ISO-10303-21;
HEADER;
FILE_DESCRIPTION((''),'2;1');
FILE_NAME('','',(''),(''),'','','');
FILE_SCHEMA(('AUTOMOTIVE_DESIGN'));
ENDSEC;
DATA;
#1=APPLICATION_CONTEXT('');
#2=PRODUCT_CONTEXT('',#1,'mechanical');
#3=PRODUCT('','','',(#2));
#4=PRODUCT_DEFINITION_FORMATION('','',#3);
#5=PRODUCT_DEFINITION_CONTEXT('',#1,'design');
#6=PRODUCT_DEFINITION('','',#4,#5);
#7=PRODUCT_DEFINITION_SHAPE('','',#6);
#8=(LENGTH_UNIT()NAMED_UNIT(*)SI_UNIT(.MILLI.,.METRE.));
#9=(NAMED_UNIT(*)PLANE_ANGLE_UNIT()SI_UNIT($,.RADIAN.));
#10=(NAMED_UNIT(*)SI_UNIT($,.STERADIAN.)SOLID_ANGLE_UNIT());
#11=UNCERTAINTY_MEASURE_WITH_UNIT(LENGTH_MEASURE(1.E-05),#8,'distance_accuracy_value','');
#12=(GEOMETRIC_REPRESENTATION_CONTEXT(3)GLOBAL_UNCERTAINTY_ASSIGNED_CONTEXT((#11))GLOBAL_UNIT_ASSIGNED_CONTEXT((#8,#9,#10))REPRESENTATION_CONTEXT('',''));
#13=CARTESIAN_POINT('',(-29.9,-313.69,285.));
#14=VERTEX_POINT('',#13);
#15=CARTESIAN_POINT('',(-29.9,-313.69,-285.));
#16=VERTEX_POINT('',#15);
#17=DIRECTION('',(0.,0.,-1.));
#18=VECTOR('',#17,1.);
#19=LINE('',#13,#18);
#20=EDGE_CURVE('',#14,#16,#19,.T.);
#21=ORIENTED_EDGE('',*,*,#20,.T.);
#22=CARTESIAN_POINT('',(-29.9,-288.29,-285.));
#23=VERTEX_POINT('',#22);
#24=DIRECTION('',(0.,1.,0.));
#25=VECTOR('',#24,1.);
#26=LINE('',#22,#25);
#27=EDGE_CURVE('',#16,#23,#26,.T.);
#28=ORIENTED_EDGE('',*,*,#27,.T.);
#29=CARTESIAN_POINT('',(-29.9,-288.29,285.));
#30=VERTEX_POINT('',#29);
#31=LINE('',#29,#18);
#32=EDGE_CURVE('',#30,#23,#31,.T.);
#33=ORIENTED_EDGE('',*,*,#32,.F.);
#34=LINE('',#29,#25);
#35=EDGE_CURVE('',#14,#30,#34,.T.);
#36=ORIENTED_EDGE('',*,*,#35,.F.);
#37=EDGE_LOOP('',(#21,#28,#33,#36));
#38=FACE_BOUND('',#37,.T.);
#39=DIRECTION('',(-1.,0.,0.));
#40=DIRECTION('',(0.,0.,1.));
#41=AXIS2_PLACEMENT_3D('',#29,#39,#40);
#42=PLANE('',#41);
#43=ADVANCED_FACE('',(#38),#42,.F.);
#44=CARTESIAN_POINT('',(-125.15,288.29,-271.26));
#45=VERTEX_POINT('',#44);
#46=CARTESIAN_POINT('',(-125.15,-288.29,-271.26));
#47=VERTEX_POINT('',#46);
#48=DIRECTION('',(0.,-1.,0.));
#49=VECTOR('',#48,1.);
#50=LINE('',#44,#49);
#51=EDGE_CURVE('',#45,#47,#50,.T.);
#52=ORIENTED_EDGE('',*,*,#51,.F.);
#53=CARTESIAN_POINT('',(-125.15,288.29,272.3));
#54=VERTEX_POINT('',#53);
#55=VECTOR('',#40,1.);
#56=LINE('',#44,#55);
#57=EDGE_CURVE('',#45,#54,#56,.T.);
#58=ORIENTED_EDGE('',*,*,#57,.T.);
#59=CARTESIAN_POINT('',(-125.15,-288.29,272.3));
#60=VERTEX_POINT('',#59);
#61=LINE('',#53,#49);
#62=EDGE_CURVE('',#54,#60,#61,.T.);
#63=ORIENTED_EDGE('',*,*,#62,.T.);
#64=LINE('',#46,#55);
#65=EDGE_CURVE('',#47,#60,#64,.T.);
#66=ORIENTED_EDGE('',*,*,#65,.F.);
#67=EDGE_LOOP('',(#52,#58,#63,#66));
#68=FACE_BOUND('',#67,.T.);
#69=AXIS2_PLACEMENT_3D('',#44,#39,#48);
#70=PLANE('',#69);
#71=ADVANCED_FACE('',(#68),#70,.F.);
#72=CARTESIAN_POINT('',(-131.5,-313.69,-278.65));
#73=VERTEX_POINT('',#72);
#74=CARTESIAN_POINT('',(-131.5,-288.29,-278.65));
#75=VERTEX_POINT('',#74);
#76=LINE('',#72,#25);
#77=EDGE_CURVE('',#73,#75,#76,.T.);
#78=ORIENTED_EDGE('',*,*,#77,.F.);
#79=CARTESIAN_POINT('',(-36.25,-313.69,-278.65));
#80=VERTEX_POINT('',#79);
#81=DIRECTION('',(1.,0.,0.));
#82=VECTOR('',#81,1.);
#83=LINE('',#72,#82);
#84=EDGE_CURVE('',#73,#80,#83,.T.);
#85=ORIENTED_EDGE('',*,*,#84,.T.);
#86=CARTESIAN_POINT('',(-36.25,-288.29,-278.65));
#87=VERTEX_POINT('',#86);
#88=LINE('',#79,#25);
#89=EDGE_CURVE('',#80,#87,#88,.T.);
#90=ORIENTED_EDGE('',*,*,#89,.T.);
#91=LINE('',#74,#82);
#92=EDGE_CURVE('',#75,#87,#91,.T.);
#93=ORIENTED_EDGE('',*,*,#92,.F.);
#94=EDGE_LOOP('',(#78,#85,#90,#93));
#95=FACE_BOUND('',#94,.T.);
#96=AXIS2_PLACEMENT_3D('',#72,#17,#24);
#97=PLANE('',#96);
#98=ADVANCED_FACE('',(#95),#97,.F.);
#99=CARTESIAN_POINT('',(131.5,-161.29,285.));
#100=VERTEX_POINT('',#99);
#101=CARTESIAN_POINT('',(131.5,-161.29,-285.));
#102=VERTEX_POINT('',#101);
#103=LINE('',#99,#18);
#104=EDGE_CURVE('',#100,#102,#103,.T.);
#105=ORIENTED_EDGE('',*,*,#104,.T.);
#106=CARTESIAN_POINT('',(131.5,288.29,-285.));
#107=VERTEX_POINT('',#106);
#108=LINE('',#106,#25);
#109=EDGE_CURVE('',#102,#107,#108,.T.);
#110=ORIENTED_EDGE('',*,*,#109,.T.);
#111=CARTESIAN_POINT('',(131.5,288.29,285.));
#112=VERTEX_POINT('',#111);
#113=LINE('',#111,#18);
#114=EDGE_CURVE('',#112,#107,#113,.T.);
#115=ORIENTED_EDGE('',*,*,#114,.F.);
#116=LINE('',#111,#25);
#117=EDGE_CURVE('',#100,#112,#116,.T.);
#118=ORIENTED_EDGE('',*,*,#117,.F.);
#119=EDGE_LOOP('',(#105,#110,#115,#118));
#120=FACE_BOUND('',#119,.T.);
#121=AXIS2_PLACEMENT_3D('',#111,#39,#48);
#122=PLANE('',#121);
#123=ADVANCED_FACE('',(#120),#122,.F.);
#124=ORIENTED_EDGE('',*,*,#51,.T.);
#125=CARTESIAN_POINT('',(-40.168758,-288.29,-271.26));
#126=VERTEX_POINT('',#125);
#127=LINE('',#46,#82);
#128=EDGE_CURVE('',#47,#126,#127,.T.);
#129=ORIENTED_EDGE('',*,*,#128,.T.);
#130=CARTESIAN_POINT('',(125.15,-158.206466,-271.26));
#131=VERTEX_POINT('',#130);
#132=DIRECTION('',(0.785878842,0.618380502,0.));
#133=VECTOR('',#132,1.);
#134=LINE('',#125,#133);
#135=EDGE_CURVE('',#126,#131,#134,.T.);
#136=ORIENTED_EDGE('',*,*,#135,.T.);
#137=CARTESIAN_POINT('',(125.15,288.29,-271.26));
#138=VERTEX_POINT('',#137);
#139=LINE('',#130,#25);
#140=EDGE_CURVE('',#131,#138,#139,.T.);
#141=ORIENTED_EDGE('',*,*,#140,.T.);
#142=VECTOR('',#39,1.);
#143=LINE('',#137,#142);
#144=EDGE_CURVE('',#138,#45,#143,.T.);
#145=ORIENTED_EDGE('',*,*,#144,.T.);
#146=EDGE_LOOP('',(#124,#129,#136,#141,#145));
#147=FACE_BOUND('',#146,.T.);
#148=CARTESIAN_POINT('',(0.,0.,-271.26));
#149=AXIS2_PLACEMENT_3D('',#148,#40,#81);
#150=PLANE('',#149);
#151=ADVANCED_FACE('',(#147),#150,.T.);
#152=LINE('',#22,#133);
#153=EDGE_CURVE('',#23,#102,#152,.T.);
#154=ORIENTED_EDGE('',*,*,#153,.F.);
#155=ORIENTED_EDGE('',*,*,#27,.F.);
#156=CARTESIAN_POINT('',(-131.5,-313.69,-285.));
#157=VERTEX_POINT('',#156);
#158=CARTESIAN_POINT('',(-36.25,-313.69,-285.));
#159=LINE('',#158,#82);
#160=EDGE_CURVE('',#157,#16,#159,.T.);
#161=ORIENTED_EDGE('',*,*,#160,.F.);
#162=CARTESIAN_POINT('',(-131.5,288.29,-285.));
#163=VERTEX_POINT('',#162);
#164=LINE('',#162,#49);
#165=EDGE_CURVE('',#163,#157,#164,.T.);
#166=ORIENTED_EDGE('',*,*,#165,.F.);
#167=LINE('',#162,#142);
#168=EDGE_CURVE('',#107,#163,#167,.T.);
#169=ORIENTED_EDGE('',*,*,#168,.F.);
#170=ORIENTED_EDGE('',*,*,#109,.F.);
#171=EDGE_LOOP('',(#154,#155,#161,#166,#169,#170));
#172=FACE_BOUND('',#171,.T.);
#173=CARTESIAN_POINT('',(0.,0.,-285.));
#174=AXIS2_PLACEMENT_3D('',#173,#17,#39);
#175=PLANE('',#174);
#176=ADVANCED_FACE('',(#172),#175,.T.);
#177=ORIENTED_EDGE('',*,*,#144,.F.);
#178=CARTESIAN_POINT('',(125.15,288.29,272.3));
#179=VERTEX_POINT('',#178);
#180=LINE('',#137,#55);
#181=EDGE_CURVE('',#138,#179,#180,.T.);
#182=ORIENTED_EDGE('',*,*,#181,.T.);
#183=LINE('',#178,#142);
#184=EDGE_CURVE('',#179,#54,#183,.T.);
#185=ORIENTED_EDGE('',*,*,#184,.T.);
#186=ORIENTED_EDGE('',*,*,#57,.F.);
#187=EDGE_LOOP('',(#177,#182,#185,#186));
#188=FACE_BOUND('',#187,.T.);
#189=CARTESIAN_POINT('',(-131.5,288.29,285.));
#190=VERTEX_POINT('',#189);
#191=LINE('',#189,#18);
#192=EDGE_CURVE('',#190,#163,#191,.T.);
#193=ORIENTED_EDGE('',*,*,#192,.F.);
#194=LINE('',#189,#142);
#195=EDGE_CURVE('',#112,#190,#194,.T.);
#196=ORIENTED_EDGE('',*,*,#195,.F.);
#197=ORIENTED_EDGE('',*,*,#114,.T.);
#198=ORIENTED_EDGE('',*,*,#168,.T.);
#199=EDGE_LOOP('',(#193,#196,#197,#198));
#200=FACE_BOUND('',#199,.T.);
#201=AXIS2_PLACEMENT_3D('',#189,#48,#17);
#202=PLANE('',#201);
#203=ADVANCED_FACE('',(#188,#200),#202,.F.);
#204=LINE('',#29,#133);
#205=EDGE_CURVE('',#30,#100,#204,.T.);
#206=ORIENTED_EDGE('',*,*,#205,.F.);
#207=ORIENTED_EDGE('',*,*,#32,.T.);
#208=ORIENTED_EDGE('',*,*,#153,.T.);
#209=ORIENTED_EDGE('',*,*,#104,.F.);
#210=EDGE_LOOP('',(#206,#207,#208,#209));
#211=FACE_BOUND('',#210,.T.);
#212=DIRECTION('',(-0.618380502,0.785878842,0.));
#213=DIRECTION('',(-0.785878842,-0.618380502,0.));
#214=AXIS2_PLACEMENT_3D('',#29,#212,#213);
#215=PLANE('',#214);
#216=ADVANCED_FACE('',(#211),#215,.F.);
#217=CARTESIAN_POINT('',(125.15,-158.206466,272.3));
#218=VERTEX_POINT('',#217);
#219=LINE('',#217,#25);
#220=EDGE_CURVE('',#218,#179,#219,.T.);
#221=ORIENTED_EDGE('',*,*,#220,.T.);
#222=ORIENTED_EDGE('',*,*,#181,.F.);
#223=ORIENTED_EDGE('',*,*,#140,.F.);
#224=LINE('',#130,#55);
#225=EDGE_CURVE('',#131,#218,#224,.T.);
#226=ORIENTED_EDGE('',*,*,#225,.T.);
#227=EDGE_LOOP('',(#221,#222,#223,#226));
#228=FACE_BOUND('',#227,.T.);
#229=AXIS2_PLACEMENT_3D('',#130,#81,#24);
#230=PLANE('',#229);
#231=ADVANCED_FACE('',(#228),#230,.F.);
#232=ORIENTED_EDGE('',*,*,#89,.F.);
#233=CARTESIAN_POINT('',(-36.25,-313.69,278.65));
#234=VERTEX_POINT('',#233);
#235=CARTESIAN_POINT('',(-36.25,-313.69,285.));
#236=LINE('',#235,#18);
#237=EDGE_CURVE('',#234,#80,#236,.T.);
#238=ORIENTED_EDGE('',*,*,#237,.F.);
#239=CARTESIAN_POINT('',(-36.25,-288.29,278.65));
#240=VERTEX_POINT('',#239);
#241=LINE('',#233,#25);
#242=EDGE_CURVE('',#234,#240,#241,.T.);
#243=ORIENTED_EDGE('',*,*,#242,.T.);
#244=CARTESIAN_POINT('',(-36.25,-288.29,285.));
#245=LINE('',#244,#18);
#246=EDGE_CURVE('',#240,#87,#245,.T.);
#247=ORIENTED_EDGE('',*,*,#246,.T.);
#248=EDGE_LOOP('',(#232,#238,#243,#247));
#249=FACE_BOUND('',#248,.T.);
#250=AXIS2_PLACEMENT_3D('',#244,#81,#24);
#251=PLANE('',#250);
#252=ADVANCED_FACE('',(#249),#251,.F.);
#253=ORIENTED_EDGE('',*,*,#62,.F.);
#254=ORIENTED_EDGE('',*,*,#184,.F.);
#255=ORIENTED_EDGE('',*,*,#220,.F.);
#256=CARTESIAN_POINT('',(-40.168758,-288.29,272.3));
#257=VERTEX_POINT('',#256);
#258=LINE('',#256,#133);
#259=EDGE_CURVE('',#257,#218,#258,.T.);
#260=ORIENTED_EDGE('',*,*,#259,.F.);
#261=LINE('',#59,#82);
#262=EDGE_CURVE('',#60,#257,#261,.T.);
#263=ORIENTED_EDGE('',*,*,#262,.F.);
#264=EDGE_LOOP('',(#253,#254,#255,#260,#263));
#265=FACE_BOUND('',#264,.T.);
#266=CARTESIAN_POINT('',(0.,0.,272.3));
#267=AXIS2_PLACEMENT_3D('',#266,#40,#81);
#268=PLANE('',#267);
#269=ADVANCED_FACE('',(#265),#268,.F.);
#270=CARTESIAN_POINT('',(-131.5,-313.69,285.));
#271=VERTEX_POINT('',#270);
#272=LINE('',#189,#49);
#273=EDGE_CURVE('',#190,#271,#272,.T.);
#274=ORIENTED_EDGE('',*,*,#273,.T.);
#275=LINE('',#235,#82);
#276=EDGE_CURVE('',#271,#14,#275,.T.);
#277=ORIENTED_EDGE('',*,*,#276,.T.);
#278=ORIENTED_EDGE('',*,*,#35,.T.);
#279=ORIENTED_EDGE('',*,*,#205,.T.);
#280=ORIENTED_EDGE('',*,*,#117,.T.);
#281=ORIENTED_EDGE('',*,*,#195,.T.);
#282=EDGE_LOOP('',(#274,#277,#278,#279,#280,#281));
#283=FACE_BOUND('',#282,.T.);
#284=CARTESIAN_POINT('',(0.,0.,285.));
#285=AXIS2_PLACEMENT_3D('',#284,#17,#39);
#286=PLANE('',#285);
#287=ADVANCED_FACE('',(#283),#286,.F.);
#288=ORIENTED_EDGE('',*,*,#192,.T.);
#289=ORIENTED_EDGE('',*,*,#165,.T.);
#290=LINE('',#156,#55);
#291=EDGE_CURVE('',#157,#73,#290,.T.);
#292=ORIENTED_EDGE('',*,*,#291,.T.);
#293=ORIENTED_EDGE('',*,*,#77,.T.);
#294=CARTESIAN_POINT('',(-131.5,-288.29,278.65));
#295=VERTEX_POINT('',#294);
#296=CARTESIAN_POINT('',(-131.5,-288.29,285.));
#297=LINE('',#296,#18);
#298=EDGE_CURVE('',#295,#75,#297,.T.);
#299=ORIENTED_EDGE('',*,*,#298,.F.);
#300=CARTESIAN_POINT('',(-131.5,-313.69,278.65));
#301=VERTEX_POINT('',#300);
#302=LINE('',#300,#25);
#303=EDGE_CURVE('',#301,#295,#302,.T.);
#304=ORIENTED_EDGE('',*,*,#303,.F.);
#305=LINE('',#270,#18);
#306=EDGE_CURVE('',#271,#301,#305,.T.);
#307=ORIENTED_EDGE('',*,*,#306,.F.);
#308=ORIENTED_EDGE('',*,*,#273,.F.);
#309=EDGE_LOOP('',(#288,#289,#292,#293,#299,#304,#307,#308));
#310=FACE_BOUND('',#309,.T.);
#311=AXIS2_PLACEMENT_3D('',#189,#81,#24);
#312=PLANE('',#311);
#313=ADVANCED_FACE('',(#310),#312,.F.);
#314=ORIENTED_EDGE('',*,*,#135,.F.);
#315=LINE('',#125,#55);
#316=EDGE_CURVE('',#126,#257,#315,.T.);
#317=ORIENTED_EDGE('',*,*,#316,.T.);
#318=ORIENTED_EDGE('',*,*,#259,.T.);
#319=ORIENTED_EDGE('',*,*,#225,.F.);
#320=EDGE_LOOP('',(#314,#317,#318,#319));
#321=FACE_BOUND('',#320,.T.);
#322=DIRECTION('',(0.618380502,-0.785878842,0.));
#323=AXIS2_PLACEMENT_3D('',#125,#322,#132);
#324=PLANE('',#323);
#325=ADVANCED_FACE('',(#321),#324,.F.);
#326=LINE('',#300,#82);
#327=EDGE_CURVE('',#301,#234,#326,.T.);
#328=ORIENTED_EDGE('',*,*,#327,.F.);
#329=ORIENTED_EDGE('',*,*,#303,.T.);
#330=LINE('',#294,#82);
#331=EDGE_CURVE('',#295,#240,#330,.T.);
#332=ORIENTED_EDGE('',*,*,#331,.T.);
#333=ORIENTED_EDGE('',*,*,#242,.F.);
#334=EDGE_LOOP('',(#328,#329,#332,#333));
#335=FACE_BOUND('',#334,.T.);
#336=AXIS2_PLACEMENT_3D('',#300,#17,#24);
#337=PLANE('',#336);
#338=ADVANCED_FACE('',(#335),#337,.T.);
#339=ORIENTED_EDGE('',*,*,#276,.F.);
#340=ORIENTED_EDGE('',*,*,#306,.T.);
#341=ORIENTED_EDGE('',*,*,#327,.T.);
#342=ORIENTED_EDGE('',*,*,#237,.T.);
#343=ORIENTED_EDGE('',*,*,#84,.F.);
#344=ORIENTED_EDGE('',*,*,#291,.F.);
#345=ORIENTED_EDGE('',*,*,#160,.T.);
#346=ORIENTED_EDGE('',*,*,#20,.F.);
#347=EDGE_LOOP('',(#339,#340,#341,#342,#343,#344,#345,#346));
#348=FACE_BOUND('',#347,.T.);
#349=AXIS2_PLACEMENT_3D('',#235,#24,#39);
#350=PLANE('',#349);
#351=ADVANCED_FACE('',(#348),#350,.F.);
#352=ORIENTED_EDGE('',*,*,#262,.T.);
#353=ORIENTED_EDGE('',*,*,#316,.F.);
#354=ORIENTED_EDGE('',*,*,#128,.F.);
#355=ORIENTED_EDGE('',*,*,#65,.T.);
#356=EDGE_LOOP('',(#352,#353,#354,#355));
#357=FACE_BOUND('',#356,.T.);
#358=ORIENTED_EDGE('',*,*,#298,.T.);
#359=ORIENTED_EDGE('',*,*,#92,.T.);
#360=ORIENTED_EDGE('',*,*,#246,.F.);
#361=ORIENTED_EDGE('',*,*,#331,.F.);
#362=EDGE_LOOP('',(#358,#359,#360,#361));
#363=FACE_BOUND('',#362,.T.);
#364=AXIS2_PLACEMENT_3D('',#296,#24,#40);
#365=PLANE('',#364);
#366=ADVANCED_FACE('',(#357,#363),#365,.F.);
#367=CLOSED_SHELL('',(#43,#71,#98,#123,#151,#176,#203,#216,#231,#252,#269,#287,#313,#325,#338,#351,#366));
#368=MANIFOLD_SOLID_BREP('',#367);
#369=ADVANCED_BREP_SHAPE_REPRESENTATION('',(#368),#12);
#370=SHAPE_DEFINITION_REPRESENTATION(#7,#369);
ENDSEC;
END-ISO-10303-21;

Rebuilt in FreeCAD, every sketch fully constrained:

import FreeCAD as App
import Part
import Sketcher
from FreeCAD import Vector
Q = App.Units.Quantity

doc = App.newDocument("Part")
body = doc.addObject("PartDesign::Body", "Body")

# Sketch on XY plane
sketch1 = doc.addObject("Sketcher::SketchObject", "Sketch")
body.addObject(sketch1)
sketch1.AttachmentSupport = (doc.XY_Plane, [""])
sketch1.MapMode = "FlatFace"
sketch1.addGeometry([
    Part.LineSegment(Vector(-30, -288, 0), Vector(132, -161, 0)),  # 0
    Part.LineSegment(Vector(132, -161, 0), Vector(132, 288, 0)),  # 1
    Part.LineSegment(Vector(132, 288, 0), Vector(-132, 288, 0)),  # 2
    Part.LineSegment(Vector(-132, 288, 0), Vector(-132, -288, 0)),  # 3
    Part.LineSegment(Vector(-132, -288, 0), Vector(-36, -288, 0)),  # 4
    Part.LineSegment(Vector(-36, -288, 0), Vector(-36, -314, 0)),  # 5
    Part.LineSegment(Vector(-36, -314, 0), Vector(-30, -314, 0)),  # 6
    Part.LineSegment(Vector(-30, -314, 0), Vector(-30, -288, 0)),  # 7
], False)
sketch1.addConstraint([
    Sketcher.Constraint("Coincident", 0, 2, 1, 1),
    Sketcher.Constraint("Coincident", 1, 2, 2, 1),
    Sketcher.Constraint("Coincident", 2, 2, 3, 1),
    Sketcher.Constraint("Coincident", 3, 2, 4, 1),
    Sketcher.Constraint("Coincident", 4, 2, 5, 1),
    Sketcher.Constraint("Coincident", 5, 2, 6, 1),
    Sketcher.Constraint("Coincident", 6, 2, 7, 1),
    Sketcher.Constraint("Coincident", 7, 2, 0, 1),
    Sketcher.Constraint("Vertical", 1),
    Sketcher.Constraint("Horizontal", 2),
    Sketcher.Constraint("Vertical", 3),
    Sketcher.Constraint("Horizontal", 4),
    Sketcher.Constraint("Vertical", 5),
    Sketcher.Constraint("Horizontal", 6),
    Sketcher.Constraint("Vertical", 7),
    Sketcher.Constraint("Symmetric", 1, 2, 3, 2, -1, 1),
    Sketcher.Constraint("Horizontal", 4, 2, 7, 2),
    Sketcher.Constraint("DistanceY", 5, 2, 5, 1, Q("1 in")),
    Sketcher.Constraint("DistanceY", 1, 1, 1, 2, Q("17.7 in")),
    Sketcher.Constraint("DistanceY", 3, 2, 3, 1, Q("22.7 in")),
    Sketcher.Constraint("DistanceX", 3, 2, 6, 2, Q("4 in")),
    Sketcher.Constraint("DistanceX", 4, 1, 4, 2, Q("3.75 in")),
    Sketcher.Constraint("DistanceX", 2, 2, 2, 1, Q("263 mm")),
])
pad1 = doc.addObject("PartDesign::Pad", "Pad")
body.addObject(pad1)
pad1.Profile = sketch1
pad1.Length = 570
pad1.Midplane = True

# Sketch on XY plane
sketch2 = doc.addObject("Sketcher::SketchObject", "Sketch001")
body.addObject(sketch2)
sketch2.AttachmentSupport = (doc.XY_Plane, [""])
sketch2.MapMode = "FlatFace"
sketch2.AttachmentOffset = App.Placement(Vector(0, 0, 272.3), App.Rotation())
sketch2.addGeometry([
    Part.LineSegment(Vector(-125, 288, 0), Vector(-125, -288, 0)),  # 0
    Part.LineSegment(Vector(-125, -288, 0), Vector(-40, -288, 0)),  # 1
    Part.LineSegment(Vector(-40, -288, 0), Vector(125, -158, 0)),  # 2
    Part.LineSegment(Vector(125, -158, 0), Vector(125, 288, 0)),  # 3
    Part.LineSegment(Vector(125, 288, 0), Vector(-125, 288, 0)),  # 4
], False)
sketch2.addConstraint([
    Sketcher.Constraint("Coincident", 0, 2, 1, 1),
    Sketcher.Constraint("Coincident", 1, 2, 2, 1),
    Sketcher.Constraint("Coincident", 2, 2, 3, 1),
    Sketcher.Constraint("Coincident", 3, 2, 4, 1),
    Sketcher.Constraint("Coincident", 4, 2, 0, 1),
    Sketcher.Constraint("Vertical", 0),
    Sketcher.Constraint("Horizontal", 1),
    Sketcher.Constraint("Vertical", 3),
    Sketcher.Constraint("Horizontal", 4),
    Sketcher.Constraint("Symmetric", 0, 2, 3, 2, -1, 1),
    Sketcher.Constraint("DistanceY", 0, 2, 0, 1, Q("22.7 in")),
    Sketcher.Constraint("DistanceX", 4, 2, 4, 1, Q("250.3 mm")),
    Sketcher.Constraint("DistanceX", 1, 1, 1, 2, Q("84.981242 mm")),
    Sketcher.Constraint("DistanceY", 3, 1, 3, 2, Q("446.496466 mm")),
])
pocket1 = doc.addObject("PartDesign::Pocket", "Pocket")
body.addObject(pocket1)
pocket1.Profile = sketch2
pocket1.Length = Q("21.4 in")

# Sketch on YZ plane
sketch3 = doc.addObject("Sketcher::SketchObject", "Sketch002")
body.addObject(sketch3)
sketch3.AttachmentSupport = (doc.YZ_Plane, [""])
sketch3.MapMode = "FlatFace"
sketch3.AttachmentOffset = App.Placement(Vector(0, 0, -36.25), App.Rotation())
sketch3.addGeometry([
    Part.LineSegment(Vector(-288, -285, 0), Vector(-314, -285, 0)),
    Part.LineSegment(Vector(-314, -285, 0), Vector(-314, -279, 0)),
    Part.LineSegment(Vector(-314, -279, 0), Vector(-288, -279, 0)),
    Part.LineSegment(Vector(-288, -279, 0), Vector(-288, -285, 0)),
], False)
sketch3.addConstraint([
    Sketcher.Constraint("Coincident", 0, 2, 1, 1),
    Sketcher.Constraint("Coincident", 1, 2, 2, 1),
    Sketcher.Constraint("Coincident", 2, 2, 3, 1),
    Sketcher.Constraint("Coincident", 3, 2, 0, 1),
    Sketcher.Constraint("Horizontal", 0),
    Sketcher.Constraint("Vertical", 1),
    Sketcher.Constraint("Horizontal", 2),
    Sketcher.Constraint("Vertical", 3),
    Sketcher.Constraint("DistanceX", 0, 2, 0, 1, Q("1 in")),
    Sketcher.Constraint("DistanceY", 1, 1, 1, 2, Q("0.25 in")),
    Sketcher.Constraint("DistanceX", 0, 2, -1, 1, Q("12.35 in")),
    Sketcher.Constraint("DistanceY", 0, 2, -1, 1, Q("285 mm")),
])
pad2 = doc.addObject("PartDesign::Pad", "Pad001")
body.addObject(pad2)
pad2.Profile = sketch3
pad2.Length = Q("3.75 in")
pad2.Reversed = True
doc.recompute()

mirrored = doc.addObject("PartDesign::Mirrored", "Mirrored")
body.addObject(mirrored)
mirrored.Originals = [pad2]
mirrored.MirrorPlane = (doc.XY_Plane, [""])
body.Tip = mirrored

doc.recompute()
